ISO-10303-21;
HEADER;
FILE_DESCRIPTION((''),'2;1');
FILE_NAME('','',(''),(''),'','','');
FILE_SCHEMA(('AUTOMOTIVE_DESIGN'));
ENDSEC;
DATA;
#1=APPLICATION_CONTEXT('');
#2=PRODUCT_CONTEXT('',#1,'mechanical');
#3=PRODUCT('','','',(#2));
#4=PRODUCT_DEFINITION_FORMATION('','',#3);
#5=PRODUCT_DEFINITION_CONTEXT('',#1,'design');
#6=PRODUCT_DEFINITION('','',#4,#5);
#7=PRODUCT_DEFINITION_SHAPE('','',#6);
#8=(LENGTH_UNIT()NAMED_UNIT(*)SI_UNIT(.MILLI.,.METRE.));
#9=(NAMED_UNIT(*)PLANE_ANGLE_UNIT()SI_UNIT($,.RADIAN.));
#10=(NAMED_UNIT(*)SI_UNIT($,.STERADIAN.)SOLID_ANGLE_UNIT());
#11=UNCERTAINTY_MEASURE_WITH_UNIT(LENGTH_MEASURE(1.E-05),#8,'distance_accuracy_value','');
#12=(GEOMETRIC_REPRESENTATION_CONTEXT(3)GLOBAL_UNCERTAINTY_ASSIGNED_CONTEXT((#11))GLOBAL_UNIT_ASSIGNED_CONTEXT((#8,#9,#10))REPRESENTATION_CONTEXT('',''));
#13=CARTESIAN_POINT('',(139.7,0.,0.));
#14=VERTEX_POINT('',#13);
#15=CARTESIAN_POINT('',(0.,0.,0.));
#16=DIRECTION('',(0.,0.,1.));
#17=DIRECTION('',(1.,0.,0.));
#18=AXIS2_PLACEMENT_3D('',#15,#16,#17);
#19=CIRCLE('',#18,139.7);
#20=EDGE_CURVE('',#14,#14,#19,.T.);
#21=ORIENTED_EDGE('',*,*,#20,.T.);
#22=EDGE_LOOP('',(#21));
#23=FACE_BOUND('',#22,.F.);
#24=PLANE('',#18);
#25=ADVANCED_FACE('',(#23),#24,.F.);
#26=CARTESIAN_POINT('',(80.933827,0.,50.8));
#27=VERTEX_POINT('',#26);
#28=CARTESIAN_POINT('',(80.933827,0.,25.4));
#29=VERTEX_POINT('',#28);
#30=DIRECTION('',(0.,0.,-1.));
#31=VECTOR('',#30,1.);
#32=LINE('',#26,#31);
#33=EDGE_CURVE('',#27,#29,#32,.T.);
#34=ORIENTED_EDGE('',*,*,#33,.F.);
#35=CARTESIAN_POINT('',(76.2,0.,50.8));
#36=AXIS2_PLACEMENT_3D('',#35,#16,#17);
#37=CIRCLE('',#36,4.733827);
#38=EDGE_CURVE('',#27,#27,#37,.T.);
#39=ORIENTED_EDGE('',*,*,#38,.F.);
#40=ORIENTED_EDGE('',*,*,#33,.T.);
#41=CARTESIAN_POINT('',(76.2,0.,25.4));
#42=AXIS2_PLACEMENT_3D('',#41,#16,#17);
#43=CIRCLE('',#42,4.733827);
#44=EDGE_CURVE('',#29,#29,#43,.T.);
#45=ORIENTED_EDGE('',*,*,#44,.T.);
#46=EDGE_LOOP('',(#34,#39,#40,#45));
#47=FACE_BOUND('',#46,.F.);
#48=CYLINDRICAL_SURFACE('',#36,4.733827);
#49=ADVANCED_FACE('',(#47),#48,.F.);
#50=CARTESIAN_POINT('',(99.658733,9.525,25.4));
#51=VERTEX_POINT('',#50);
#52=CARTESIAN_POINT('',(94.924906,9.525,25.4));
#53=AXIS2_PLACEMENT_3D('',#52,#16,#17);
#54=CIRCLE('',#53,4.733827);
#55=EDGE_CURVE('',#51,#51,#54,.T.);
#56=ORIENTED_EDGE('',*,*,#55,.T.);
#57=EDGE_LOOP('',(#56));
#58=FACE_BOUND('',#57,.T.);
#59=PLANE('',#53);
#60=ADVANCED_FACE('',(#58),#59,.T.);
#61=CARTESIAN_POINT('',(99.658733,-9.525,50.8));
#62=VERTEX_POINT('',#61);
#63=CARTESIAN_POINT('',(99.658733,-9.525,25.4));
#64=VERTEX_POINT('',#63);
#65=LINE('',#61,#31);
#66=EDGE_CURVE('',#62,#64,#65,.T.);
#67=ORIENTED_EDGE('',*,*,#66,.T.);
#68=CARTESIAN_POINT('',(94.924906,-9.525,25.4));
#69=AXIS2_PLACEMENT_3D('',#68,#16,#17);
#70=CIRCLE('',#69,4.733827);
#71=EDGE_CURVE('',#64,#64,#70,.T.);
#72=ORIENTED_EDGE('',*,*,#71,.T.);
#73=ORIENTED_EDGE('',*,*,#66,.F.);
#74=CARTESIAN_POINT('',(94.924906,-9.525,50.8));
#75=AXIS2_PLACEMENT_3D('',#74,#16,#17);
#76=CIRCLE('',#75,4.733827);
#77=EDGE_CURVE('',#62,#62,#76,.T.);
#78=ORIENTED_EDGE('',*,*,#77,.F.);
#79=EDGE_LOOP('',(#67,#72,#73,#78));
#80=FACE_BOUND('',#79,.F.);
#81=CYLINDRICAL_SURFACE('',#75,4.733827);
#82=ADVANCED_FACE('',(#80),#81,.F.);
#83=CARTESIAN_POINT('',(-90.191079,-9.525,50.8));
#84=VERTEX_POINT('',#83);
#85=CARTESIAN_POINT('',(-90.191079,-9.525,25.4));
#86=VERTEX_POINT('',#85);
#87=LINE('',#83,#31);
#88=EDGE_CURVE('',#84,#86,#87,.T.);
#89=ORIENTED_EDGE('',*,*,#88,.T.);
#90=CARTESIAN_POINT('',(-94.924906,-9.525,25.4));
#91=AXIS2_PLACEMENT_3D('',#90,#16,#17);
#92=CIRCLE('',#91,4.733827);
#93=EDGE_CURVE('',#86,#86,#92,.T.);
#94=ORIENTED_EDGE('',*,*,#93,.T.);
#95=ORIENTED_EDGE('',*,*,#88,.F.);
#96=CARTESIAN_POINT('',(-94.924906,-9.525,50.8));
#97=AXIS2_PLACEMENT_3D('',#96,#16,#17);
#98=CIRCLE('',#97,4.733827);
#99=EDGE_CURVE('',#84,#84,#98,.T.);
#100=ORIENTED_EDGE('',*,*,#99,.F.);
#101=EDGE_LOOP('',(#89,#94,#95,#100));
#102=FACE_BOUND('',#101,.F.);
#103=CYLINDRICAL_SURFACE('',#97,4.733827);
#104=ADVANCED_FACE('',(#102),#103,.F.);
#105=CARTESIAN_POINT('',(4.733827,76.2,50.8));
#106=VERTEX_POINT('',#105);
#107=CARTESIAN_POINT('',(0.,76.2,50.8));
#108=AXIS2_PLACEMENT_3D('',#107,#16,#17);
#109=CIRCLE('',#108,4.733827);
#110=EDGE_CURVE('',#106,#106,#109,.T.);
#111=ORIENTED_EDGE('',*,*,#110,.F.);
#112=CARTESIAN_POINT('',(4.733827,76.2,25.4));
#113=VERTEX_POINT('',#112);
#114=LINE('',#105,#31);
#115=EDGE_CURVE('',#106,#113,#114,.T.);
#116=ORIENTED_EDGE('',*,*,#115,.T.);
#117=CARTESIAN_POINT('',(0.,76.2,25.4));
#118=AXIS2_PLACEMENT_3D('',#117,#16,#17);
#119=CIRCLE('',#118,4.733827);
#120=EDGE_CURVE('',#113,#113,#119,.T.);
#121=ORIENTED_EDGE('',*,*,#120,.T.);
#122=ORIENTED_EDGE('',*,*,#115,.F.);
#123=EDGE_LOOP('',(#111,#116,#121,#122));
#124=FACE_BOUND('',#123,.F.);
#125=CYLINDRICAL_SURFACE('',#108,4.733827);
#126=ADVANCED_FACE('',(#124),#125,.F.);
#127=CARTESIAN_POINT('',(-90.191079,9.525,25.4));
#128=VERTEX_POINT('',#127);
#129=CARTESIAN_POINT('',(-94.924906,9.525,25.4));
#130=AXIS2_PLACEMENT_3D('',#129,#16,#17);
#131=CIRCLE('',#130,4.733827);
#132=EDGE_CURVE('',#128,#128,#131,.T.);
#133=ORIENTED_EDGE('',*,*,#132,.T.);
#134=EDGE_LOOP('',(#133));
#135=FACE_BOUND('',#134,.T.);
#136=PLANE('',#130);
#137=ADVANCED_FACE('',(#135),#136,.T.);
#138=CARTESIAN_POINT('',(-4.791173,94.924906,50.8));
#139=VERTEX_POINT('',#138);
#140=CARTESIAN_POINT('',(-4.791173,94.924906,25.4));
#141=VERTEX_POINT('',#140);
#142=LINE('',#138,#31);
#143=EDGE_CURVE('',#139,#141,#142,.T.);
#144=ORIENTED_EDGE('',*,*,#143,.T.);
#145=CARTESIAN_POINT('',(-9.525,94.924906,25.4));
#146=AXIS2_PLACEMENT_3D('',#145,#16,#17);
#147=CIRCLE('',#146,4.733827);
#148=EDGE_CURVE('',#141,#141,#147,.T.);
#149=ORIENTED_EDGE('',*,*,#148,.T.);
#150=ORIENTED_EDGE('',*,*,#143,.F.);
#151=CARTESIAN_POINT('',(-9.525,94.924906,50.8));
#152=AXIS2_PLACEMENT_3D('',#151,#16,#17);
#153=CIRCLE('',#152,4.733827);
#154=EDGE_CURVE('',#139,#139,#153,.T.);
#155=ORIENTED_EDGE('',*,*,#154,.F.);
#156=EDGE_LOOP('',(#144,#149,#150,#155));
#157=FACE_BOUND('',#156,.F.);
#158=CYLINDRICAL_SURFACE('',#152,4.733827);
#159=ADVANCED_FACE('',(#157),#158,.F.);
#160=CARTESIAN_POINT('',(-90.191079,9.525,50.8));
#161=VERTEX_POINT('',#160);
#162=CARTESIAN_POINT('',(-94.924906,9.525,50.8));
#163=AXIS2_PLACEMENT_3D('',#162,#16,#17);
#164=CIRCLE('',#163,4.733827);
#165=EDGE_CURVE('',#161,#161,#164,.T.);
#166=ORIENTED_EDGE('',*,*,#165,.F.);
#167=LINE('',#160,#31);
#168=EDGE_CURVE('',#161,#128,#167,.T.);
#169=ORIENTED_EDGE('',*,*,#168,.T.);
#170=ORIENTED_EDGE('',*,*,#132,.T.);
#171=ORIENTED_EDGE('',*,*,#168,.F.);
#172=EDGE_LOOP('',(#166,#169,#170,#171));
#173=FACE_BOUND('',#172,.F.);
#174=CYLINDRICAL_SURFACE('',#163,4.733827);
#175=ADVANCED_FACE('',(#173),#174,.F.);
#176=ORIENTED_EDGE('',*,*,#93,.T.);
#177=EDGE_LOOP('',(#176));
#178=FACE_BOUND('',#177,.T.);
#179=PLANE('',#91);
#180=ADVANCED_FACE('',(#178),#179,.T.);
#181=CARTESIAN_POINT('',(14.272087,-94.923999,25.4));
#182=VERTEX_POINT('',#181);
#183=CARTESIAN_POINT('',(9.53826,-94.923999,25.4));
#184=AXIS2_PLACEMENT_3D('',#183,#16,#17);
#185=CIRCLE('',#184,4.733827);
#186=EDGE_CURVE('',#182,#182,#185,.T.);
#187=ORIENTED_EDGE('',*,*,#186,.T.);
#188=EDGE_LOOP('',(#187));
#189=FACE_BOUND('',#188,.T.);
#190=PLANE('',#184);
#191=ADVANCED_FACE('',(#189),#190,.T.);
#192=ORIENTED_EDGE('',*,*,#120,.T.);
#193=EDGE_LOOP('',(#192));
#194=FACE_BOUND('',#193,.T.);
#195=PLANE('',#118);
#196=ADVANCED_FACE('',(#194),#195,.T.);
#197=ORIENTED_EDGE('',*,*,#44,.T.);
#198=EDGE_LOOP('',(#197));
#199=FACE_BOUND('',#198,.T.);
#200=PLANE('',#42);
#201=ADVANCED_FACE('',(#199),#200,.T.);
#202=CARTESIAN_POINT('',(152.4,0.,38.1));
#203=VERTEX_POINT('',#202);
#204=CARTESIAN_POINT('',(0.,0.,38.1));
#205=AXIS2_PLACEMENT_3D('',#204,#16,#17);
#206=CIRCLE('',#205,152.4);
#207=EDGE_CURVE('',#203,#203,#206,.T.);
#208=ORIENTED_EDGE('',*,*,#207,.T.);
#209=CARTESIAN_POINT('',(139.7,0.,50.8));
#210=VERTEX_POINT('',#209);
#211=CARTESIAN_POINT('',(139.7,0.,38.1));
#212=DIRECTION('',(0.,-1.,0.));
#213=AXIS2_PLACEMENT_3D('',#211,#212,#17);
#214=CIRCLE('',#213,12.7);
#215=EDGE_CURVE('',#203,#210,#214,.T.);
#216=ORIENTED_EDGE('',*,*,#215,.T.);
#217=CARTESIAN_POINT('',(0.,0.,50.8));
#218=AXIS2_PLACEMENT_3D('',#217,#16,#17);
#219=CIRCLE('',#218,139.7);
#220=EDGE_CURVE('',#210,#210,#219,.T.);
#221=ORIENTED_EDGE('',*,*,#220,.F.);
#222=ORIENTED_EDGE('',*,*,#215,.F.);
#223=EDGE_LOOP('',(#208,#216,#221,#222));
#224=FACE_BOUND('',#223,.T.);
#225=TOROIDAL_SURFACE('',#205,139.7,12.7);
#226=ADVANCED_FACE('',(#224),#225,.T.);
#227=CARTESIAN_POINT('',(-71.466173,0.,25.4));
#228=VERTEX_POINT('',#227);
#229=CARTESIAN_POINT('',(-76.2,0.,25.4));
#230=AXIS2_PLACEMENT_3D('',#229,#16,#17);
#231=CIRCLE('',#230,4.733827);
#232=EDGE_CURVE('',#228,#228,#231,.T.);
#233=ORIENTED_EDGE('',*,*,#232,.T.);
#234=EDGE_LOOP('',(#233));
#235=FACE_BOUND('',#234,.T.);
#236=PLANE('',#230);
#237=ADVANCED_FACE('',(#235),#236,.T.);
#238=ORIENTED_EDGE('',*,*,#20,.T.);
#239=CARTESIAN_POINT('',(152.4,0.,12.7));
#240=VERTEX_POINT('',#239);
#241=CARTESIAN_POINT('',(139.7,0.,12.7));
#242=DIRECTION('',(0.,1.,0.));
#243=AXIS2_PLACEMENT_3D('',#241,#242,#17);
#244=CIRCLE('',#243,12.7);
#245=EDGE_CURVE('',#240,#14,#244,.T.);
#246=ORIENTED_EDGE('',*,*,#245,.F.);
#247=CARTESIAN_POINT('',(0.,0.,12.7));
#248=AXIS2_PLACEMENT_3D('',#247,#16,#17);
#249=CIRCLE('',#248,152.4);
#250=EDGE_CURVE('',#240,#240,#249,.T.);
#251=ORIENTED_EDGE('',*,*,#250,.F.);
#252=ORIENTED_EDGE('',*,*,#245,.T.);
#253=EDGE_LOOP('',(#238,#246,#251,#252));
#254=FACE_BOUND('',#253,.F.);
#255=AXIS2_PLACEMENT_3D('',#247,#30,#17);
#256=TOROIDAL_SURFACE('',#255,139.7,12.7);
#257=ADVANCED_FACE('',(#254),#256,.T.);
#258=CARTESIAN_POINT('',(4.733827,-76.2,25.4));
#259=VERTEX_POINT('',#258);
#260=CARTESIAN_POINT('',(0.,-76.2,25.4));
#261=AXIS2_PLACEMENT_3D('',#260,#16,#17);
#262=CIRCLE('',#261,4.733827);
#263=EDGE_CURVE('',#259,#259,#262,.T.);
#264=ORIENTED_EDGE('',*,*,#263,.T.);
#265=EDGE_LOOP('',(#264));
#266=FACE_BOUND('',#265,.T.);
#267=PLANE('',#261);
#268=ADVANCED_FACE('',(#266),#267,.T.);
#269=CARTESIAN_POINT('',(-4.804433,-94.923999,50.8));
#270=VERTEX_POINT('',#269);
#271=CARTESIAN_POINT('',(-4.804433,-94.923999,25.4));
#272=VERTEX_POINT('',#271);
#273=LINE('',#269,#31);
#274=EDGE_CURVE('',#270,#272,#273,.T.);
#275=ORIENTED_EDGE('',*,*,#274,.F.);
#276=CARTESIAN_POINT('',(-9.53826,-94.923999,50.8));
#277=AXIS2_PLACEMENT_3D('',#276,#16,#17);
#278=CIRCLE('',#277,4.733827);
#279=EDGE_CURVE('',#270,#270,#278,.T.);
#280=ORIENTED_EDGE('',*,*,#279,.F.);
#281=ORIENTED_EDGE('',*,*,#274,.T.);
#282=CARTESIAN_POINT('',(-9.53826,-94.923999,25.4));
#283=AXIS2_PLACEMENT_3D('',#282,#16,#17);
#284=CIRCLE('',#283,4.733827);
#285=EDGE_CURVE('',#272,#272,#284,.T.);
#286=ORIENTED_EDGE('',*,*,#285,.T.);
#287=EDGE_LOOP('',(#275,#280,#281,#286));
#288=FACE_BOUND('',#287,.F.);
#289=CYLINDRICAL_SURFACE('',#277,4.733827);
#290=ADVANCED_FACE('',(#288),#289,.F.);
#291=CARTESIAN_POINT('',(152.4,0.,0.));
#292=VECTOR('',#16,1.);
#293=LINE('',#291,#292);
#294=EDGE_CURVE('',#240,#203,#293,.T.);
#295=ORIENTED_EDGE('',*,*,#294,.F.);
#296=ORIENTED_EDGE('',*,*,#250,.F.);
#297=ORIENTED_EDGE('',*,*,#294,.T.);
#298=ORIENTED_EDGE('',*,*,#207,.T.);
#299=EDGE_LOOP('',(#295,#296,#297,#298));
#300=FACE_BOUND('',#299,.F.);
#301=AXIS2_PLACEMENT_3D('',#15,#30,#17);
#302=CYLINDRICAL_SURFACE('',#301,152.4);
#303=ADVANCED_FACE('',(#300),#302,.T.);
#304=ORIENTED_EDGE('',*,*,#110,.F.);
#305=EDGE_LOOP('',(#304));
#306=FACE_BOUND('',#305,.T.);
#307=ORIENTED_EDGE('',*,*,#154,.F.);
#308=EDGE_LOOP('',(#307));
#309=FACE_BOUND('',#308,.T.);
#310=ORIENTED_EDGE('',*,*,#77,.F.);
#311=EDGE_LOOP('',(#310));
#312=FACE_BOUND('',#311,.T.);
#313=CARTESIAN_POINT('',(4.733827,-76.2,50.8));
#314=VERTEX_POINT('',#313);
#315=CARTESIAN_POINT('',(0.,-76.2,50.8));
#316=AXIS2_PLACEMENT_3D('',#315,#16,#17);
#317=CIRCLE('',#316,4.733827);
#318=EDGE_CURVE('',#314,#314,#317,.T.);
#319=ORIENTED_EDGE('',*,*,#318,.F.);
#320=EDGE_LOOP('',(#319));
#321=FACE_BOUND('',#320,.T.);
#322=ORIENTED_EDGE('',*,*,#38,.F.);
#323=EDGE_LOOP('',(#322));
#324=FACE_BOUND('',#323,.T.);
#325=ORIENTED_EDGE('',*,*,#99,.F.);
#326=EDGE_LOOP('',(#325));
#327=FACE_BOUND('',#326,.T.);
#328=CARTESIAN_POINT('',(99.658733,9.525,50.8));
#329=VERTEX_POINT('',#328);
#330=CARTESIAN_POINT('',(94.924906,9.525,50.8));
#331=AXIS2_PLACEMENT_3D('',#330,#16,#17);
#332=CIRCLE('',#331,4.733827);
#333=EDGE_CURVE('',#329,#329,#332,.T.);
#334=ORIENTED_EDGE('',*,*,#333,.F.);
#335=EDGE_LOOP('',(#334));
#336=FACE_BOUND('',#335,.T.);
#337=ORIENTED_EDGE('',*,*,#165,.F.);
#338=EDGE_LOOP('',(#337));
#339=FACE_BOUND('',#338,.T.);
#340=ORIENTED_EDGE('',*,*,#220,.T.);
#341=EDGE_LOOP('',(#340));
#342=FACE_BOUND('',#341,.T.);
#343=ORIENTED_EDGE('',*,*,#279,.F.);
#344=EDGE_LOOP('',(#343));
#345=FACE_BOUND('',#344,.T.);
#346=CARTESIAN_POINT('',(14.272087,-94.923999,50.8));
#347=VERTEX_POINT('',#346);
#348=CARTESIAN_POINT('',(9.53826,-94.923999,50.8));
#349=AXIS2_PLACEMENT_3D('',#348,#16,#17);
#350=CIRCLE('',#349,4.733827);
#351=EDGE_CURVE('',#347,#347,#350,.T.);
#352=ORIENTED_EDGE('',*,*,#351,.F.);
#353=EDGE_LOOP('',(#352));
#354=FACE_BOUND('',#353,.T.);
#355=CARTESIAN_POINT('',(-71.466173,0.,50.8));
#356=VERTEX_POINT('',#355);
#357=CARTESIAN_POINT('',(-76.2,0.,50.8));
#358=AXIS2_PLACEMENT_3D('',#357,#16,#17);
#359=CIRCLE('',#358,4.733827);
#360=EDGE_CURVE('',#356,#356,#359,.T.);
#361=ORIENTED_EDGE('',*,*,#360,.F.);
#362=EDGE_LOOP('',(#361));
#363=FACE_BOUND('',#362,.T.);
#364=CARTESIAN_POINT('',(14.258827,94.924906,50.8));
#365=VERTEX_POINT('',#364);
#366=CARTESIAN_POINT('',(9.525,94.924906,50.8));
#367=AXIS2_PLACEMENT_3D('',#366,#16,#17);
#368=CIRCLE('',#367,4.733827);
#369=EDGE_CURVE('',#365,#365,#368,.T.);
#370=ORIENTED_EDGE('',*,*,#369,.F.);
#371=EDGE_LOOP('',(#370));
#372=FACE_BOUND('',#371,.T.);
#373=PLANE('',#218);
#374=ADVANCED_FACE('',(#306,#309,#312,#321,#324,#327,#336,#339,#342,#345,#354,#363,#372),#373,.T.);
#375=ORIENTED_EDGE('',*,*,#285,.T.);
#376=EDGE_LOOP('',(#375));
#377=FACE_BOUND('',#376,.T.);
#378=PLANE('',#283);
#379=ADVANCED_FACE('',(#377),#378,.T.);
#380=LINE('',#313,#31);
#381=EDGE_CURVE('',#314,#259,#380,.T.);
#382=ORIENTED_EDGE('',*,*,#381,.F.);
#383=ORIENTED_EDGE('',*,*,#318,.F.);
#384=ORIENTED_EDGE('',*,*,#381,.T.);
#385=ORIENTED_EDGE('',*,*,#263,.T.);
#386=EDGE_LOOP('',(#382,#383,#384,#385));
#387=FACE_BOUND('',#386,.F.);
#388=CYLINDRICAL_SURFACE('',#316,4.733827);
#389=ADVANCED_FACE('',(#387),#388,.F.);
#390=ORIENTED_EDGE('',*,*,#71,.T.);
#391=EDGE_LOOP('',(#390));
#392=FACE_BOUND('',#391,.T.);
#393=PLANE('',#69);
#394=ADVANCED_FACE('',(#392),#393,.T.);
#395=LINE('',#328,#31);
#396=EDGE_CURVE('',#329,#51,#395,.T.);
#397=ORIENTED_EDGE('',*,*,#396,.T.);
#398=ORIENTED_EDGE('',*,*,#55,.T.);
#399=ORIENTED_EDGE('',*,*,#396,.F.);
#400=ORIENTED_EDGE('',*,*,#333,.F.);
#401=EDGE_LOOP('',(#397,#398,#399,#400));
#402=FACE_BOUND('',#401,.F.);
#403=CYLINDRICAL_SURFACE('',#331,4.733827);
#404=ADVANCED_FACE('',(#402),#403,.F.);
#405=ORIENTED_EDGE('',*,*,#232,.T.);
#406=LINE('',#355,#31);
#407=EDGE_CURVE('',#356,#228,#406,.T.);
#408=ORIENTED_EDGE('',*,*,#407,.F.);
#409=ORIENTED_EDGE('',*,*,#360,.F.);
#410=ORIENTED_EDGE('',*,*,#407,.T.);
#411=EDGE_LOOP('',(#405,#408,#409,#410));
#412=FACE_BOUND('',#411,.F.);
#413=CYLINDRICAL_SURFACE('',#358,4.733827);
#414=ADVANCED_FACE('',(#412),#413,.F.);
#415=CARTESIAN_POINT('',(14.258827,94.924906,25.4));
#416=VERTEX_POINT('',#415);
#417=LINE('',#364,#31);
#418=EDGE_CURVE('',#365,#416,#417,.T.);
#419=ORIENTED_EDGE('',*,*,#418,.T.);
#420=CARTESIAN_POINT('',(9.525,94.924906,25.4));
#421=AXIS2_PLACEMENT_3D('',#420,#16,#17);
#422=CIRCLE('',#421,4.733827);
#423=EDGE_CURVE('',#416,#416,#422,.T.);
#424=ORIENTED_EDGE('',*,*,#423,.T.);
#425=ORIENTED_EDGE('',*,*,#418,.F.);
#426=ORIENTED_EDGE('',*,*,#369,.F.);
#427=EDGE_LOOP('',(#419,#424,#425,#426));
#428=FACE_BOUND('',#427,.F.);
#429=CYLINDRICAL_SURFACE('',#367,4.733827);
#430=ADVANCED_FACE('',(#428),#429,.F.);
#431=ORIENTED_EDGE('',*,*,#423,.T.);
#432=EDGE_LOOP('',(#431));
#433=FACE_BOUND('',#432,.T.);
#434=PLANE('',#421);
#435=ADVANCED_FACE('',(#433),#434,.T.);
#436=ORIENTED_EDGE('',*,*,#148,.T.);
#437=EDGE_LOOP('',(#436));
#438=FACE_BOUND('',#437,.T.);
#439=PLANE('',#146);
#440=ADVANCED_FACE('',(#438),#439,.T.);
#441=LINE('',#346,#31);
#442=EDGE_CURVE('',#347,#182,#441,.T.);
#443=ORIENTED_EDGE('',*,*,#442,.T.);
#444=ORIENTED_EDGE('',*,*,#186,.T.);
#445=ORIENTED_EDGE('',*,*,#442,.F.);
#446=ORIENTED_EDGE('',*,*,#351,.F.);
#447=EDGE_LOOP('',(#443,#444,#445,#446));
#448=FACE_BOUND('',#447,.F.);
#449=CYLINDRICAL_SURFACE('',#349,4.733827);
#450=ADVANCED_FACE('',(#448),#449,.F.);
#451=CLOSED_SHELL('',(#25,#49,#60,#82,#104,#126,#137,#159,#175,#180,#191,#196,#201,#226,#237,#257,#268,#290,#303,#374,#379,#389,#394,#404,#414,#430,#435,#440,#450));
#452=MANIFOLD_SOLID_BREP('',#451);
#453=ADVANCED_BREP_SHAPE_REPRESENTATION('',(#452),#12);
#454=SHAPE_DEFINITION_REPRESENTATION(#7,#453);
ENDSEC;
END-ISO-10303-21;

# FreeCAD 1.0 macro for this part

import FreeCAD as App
import Part
import Sketcher

V = App.Vector
Q = App.Units.Quantity


def edges_at(feature, points):
    """Names of the edges that pass closest to the given points."""
    edges = feature.Shape.Edges
    near = lambda p: min(range(len(edges)), key=lambda i: edges[i].distToShape(Part.Vertex(*p))[0])
    return sorted({f"Edge{near(p) + 1}" for p in points})

doc = App.newDocument("Part")
body = doc.addObject("PartDesign::Body", "Body")

sketch1 = body.newObject("Sketcher::SketchObject", "Sketch")
sketch1.AttachmentSupport = (doc.getObject("XY_Plane"), [""])
sketch1.MapMode = "FlatFace"
sketch1.addGeometry(Part.Circle(V(0, 0, 0), V(0, 0, 1), 152), False)
sketch1.addConstraint([
    Sketcher.Constraint("Coincident", 0, 3, -1, 1),
    Sketcher.Constraint("Diameter", 0, Q("12 in")),
])
pad1 = body.newObject("PartDesign::Pad", "Pad")
pad1.Profile = sketch1
pad1.Length = Q("2 in")
doc.recompute()

fillet = body.newObject("PartDesign::Fillet", "Fillet")
fillet.Base = (pad1, edges_at(pad1, [(-152.4, 0, 50.8), (-152.4, 0, 0)]))
fillet.Radius = Q("0.5 in")

sketch2 = body.newObject("Sketcher::SketchObject", "Sketch001")
sketch2.AttachmentSupport = (doc.getObject("XY_Plane"), [""])
sketch2.MapMode = "FlatFace"
sketch2.AttachmentOffset = App.Placement(V(0, 0, 2 * 25.4), App.Rotation())
sketch2.addGeometry([
    Part.Circle(V(-94.9, -9.5, 0), V(0, 0, 1), 4.7),
    Part.Circle(V(-94.9, 9.5, 0), V(0, 0, 1), 4.7),
    Part.Circle(V(-76.2, 0, 0), V(0, 0, 1), 4.7),
    Part.Circle(V(-9.5, -94.9, 0), V(0, 0, 1), 4.7),
    Part.Circle(V(0, -76.2, 0), V(0, 0, 1), 4.7),
    Part.Circle(V(9.5, -94.9, 0), V(0, 0, 1), 4.7),
    Part.Circle(V(76.2, 0, 0), V(0, 0, 1), 4.7),
    Part.Circle(V(94.9, 9.5, 0), V(0, 0, 1), 4.7),
    Part.Circle(V(94.9, -9.5, 0), V(0, 0, 1), 4.7),
    Part.Circle(V(0, 76.2, 0), V(0, 0, 1), 4.7),
    Part.Circle(V(9.5, 94.9, 0), V(0, 0, 1), 4.7),
    Part.Circle(V(-9.5, 94.9, 0), V(0, 0, 1), 4.7),
], False)
sketch2.addConstraint([
    Sketcher.Constraint("Equal", 0, 1),
    Sketcher.Constraint("Equal", 1, 2),
    Sketcher.Constraint("Equal", 2, 3),
    Sketcher.Constraint("Equal", 3, 4),
    Sketcher.Constraint("Equal", 4, 5),
    Sketcher.Constraint("Equal", 5, 6),
    Sketcher.Constraint("Equal", 6, 7),
    Sketcher.Constraint("Equal", 7, 8),
    Sketcher.Constraint("Equal", 8, 9),
    Sketcher.Constraint("Equal", 9, 10),
    Sketcher.Constraint("Equal", 10, 11),
    Sketcher.Constraint("Symmetric", 2, 3, 6, 3, -1, 1),
    Sketcher.Constraint("Symmetric", 0, 3, 7, 3, -1, 1),
    Sketcher.Constraint("Symmetric", 1, 3, 8, 3, -1, 1),
    Sketcher.Constraint("Symmetric", 4, 3, 9, 3, -1, 1),
    Sketcher.Constraint("Symmetric", 3, 3, 5, 3, -2),
    Sketcher.Constraint("Symmetric", 1, 3, 7, 3, -2),
    Sketcher.Constraint("Symmetric", 10, 3, 11, 3, -2),
    Sketcher.Constraint("PointOnObject", 2, 3, -1),
    Sketcher.Constraint("PointOnObject", 4, 3, -2),
    Sketcher.Constraint("DistanceX", 2, 3, -1, 1, Q("3 in")),
    Sketcher.Constraint("DistanceY", 4, 3, -1, 1, Q("3 in")),
    Sketcher.Constraint("DistanceY", 0, 3, 1, 3, Q("0.75 in")),
    Sketcher.Constraint("DistanceX", 11, 3, 10, 3, Q("0.75 in")),
    Sketcher.Constraint("Diameter", 0, 9.467654),
    Sketcher.Constraint("DistanceY", 3, 3, -1, 1, 94.923999),
    Sketcher.Constraint("DistanceX", 3, 3, -1, 1, 9.53826),
    Sketcher.Constraint("DistanceX", 0, 3, -1, 1, 94.924906),
    Sketcher.Constraint("DistanceY", -1, 1, 10, 3, 94.924906),
])
pocket1 = body.newObject("PartDesign::Pocket", "Pocket")
pocket1.Profile = sketch2
pocket1.Length = Q("1 in")

doc.recompute()
